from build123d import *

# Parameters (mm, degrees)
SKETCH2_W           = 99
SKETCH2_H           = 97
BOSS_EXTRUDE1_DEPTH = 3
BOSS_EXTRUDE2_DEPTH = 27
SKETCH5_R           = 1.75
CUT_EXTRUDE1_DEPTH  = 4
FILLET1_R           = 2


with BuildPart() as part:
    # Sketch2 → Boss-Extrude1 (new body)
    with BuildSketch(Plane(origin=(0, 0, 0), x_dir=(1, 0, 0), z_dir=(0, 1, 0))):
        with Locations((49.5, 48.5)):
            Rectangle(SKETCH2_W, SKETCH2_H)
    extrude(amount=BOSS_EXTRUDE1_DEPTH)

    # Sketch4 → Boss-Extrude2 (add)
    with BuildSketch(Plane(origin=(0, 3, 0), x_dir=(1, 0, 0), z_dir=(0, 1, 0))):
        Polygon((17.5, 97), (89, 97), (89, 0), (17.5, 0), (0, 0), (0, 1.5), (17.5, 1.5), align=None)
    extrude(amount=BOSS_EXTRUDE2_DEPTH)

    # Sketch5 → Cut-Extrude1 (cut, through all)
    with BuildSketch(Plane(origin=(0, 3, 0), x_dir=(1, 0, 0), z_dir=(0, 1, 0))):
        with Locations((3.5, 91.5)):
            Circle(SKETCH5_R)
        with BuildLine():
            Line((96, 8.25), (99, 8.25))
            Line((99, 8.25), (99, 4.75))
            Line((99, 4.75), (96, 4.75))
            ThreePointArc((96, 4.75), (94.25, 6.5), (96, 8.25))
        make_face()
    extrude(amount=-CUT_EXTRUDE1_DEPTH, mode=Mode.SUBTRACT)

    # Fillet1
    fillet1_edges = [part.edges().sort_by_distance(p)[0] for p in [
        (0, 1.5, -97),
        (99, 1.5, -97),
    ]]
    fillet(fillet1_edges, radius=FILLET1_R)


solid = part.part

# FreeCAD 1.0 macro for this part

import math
import FreeCAD as App
import Part
import Sketcher
from FreeCAD import Vector
Q = App.Units.Quantity


def edges_at(feature, points):
    """Names of the edges that pass closest to the given points."""
    edges = feature.Shape.Edges
    near = lambda p: min(range(len(edges)), key=lambda i: edges[i].distToShape(Part.Vertex(*p))[0])
    return sorted({f"Edge{near(p) + 1}" for p in points})


def add_polygon(sketch, points):
    """Adds a closed chain of lines whose ends are joined by coincident constraints."""
    first, n = sketch.GeometryCount, len(points)
    for a, b in zip(points, points[1:] + points[:1]):
        sketch.addGeometry(Part.LineSegment(App.Vector(*a, 0), App.Vector(*b, 0)), False)
    for i in range(n):
        sketch.addConstraint(Sketcher.Constraint("Coincident", first + i, 2, first + (i + 1) % n, 1))

doc = App.newDocument("Part")
body = doc.addObject("PartDesign::Body", "Body")

# Sketch on XZ plane
sketch1 = body.newObject("Sketcher::SketchObject", "Sketch")
sketch1.AttachmentSupport = (doc.getObject("XZ_Plane"), [""])
sketch1.MapMode = "FlatFace"
add_polygon(sketch1, [(0, -97), (0, 0), (99, 0), (99, -97)])  # lines 0-3
sketch1.addConstraint([
    Sketcher.Constraint("Vertical", 0),
    Sketcher.Constraint("Horizontal", 1),
    Sketcher.Constraint("Vertical", 2),
    Sketcher.Constraint("Horizontal", 3),
    Sketcher.Constraint("Coincident", 0, 2, -1, 1),
    Sketcher.Constraint("DistanceX", 1, 1, 1, 2, Q("99 mm")),
    Sketcher.Constraint("DistanceY", 0, 1, 0, 2, Q("97 mm")),
])
pad1 = body.newObject("PartDesign::Pad", "Pad")
pad1.Profile = sketch1
pad1.Length = 3
pad1.Reversed = True

# Sketch on XZ plane
sketch2 = body.newObject("Sketcher::SketchObject", "Sketch001")
sketch2.AttachmentSupport = (doc.getObject("XZ_Plane"), [""])
sketch2.MapMode = "FlatFace"
sketch2.AttachmentOffset = App.Placement(Vector(0, 0, -3), App.Rotation())
add_polygon(sketch2, [(89, -97), (17.5, -97), (17.5, -1.5), (0, -1.5), (0, 0), (89, 0)])  # lines 0-5
sketch2.addConstraint([
    Sketcher.Constraint("Horizontal", 0),
    Sketcher.Constraint("Vertical", 1),
    Sketcher.Constraint("Horizontal", 2),
    Sketcher.Constraint("Vertical", 3),
    Sketcher.Constraint("Horizontal", 4),
    Sketcher.Constraint("Vertical", 5),
    Sketcher.Constraint("Coincident", 3, 2, -1, 1),
    Sketcher.Constraint("DistanceX", 4, 1, 4, 2, Q("89 mm")),
    Sketcher.Constraint("DistanceY", 5, 2, 5, 1, Q("97 mm")),
    Sketcher.Constraint("DistanceX", 0, 2, 0, 1, Q("71.5 mm")),
    Sketcher.Constraint("DistanceY", 1, 1, 1, 2, Q("95.5 mm")),
])
pad2 = body.newObject("PartDesign::Pad", "Pad001")
pad2.Profile = sketch2
pad2.Length = 27
pad2.Reversed = True

# Sketch on XZ plane
sketch3 = body.newObject("Sketcher::SketchObject", "Sketch002")
sketch3.AttachmentSupport = (doc.getObject("XZ_Plane"), [""])
sketch3.MapMode = "FlatFace"
sketch3.AttachmentOffset = App.Placement(Vector(0, 0, -3), App.Rotation())
sketch3.addGeometry([
    Part.Circle(Vector(3.5, -91.5, 0), Vector(0, 0, 1), 1.8),  # 0
    Part.LineSegment(Vector(99, -8.2, 0), Vector(96, -8.2, 0)),  # 1
    Part.ArcOfCircle(Part.Circle(Vector(96, -6.5, 0), Vector(0, 0, 1), 1.8), math.radians(90), math.radians(270)),  # 2
    Part.LineSegment(Vector(96, -4.8, 0), Vector(99, -4.8, 0)),  # 3
    Part.LineSegment(Vector(99, -4.8, 0), Vector(99, -8.2, 0)),  # 4
], False)
sketch3.addConstraint([
    Sketcher.Constraint("Tangent", 1, 2, 2, 2),
    Sketcher.Constraint("Tangent", 2, 1, 3, 1),
    Sketcher.Constraint("Coincident", 3, 2, 4, 1),
    Sketcher.Constraint("Coincident", 4, 2, 1, 1),
    Sketcher.Constraint("Horizontal", 1),
    Sketcher.Constraint("Horizontal", 3),
    Sketcher.Constraint("Vertical", 4),
    Sketcher.Constraint("Equal", 0, 2),
    Sketcher.Constraint("Diameter", 0, Q("3.5 mm")),
    Sketcher.Constraint("DistanceX", 1, 2, 1, 1, Q("3 mm")),
    Sketcher.Constraint("DistanceX", -1, 1, 2, 3, Q("96 mm")),
    Sketcher.Constraint("DistanceY", 0, 3, 2, 3, Q("85 mm")),
    Sketcher.Constraint("DistanceX", -1, 1, 0, 3, Q("3.5 mm")),
    Sketcher.Constraint("DistanceY", 0, 3, -1, 1, Q("91.5 mm")),
])
pocket1 = body.newObject("PartDesign::Pocket", "Pocket")
pocket1.Profile = sketch3
pocket1.Type = "ThroughAll"
pocket1.Reversed = True
doc.recompute()

fillet = body.newObject("PartDesign::Fillet", "Fillet")
fillet.Base = (pocket1, edges_at(pocket1, [(0, 1.5, -97), (99, 1.5, -97)]))
fillet.Radius = 2

doc.recompute()
